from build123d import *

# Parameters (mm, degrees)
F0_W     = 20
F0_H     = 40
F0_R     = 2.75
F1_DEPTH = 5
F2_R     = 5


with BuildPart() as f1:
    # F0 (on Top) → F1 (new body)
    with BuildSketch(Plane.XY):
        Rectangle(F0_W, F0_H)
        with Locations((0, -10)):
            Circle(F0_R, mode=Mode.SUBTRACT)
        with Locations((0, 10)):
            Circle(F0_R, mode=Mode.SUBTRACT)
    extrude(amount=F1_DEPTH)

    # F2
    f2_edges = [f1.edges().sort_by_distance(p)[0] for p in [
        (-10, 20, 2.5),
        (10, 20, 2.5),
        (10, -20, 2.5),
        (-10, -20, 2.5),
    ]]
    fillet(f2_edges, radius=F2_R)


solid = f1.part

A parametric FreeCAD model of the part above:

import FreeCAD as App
import Part
import Sketcher
from FreeCAD import Vector


def edges_at(feature, points):
    """Names of the edges that pass closest to the given points."""
    edges = feature.Shape.Edges
    near = lambda p: min(range(len(edges)), key=lambda i: edges[i].distToShape(Part.Vertex(*p))[0])
    return sorted({f"Edge{near(p) + 1}" for p in points})

doc = App.newDocument("Part")
body = doc.addObject("PartDesign::Body", "Body")

# Sketch on XY plane
sketch1 = body.newObject("Sketcher::SketchObject", "Sketch")
sketch1.AttachmentSupport = (doc.getObject("XY_Plane"), [""])
sketch1.MapMode = "FlatFace"
sketch1.addGeometry([
    Part.LineSegment(Vector(-10, 20, 0), Vector(-10, -20, 0)),  # 0
    Part.LineSegment(Vector(-10, -20, 0), Vector(10, -20, 0)),  # 1
    Part.LineSegment(Vector(10, -20, 0), Vector(10, 20, 0)),  # 2
    Part.LineSegment(Vector(10, 20, 0), Vector(-10, 20, 0)),  # 3
    Part.Circle(Vector(0, -10, 0), Vector(0, 0, 1), 2.8),  # 4
    Part.Circle(Vector(0, 10, 0), Vector(0, 0, 1), 2.8),  # 5
], False)
sketch1.addConstraint([
    Sketcher.Constraint("Coincident", 0, 2, 1, 1),
    Sketcher.Constraint("Coincident", 1, 2, 2, 1),
    Sketcher.Constraint("Coincident", 2, 2, 3, 1),
    Sketcher.Constraint("Coincident", 3, 2, 0, 1),
    Sketcher.Constraint("Vertical", 0),
    Sketcher.Constraint("Horizontal", 1),
    Sketcher.Constraint("Vertical", 2),
    Sketcher.Constraint("Horizontal", 3),
    Sketcher.Constraint("Equal", 4, 5),
    Sketcher.Constraint("Symmetric", 4, 3, 5, 3, -1, 1),
    Sketcher.Constraint("Symmetric", 0, 2, 2, 2, -1, 1),
    Sketcher.Constraint("PointOnObject", 4, 3, -2),
    Sketcher.Constraint("Diameter", 4, 5.5),
    Sketcher.Constraint("DistanceX", 1, 1, 1, 2, 20.0),
    Sketcher.Constraint("DistanceY", 0, 2, 0, 1, 40.0),
    Sketcher.Constraint("DistanceY", 4, 3, -1, 1, 10.0),
])
pad1 = body.newObject("PartDesign::Pad", "Pad")
pad1.Profile = sketch1
pad1.Length = 5
doc.recompute()

fillet = body.newObject("PartDesign::Fillet", "Fillet")
fillet.Base = (pad1, edges_at(pad1, [
    (-10, 20, 2.5),
    (10, 20, 2.5),
    (10, -20, 2.5),
    (-10, -20, 2.5),
]))
fillet.Radius = 5

doc.recompute()
